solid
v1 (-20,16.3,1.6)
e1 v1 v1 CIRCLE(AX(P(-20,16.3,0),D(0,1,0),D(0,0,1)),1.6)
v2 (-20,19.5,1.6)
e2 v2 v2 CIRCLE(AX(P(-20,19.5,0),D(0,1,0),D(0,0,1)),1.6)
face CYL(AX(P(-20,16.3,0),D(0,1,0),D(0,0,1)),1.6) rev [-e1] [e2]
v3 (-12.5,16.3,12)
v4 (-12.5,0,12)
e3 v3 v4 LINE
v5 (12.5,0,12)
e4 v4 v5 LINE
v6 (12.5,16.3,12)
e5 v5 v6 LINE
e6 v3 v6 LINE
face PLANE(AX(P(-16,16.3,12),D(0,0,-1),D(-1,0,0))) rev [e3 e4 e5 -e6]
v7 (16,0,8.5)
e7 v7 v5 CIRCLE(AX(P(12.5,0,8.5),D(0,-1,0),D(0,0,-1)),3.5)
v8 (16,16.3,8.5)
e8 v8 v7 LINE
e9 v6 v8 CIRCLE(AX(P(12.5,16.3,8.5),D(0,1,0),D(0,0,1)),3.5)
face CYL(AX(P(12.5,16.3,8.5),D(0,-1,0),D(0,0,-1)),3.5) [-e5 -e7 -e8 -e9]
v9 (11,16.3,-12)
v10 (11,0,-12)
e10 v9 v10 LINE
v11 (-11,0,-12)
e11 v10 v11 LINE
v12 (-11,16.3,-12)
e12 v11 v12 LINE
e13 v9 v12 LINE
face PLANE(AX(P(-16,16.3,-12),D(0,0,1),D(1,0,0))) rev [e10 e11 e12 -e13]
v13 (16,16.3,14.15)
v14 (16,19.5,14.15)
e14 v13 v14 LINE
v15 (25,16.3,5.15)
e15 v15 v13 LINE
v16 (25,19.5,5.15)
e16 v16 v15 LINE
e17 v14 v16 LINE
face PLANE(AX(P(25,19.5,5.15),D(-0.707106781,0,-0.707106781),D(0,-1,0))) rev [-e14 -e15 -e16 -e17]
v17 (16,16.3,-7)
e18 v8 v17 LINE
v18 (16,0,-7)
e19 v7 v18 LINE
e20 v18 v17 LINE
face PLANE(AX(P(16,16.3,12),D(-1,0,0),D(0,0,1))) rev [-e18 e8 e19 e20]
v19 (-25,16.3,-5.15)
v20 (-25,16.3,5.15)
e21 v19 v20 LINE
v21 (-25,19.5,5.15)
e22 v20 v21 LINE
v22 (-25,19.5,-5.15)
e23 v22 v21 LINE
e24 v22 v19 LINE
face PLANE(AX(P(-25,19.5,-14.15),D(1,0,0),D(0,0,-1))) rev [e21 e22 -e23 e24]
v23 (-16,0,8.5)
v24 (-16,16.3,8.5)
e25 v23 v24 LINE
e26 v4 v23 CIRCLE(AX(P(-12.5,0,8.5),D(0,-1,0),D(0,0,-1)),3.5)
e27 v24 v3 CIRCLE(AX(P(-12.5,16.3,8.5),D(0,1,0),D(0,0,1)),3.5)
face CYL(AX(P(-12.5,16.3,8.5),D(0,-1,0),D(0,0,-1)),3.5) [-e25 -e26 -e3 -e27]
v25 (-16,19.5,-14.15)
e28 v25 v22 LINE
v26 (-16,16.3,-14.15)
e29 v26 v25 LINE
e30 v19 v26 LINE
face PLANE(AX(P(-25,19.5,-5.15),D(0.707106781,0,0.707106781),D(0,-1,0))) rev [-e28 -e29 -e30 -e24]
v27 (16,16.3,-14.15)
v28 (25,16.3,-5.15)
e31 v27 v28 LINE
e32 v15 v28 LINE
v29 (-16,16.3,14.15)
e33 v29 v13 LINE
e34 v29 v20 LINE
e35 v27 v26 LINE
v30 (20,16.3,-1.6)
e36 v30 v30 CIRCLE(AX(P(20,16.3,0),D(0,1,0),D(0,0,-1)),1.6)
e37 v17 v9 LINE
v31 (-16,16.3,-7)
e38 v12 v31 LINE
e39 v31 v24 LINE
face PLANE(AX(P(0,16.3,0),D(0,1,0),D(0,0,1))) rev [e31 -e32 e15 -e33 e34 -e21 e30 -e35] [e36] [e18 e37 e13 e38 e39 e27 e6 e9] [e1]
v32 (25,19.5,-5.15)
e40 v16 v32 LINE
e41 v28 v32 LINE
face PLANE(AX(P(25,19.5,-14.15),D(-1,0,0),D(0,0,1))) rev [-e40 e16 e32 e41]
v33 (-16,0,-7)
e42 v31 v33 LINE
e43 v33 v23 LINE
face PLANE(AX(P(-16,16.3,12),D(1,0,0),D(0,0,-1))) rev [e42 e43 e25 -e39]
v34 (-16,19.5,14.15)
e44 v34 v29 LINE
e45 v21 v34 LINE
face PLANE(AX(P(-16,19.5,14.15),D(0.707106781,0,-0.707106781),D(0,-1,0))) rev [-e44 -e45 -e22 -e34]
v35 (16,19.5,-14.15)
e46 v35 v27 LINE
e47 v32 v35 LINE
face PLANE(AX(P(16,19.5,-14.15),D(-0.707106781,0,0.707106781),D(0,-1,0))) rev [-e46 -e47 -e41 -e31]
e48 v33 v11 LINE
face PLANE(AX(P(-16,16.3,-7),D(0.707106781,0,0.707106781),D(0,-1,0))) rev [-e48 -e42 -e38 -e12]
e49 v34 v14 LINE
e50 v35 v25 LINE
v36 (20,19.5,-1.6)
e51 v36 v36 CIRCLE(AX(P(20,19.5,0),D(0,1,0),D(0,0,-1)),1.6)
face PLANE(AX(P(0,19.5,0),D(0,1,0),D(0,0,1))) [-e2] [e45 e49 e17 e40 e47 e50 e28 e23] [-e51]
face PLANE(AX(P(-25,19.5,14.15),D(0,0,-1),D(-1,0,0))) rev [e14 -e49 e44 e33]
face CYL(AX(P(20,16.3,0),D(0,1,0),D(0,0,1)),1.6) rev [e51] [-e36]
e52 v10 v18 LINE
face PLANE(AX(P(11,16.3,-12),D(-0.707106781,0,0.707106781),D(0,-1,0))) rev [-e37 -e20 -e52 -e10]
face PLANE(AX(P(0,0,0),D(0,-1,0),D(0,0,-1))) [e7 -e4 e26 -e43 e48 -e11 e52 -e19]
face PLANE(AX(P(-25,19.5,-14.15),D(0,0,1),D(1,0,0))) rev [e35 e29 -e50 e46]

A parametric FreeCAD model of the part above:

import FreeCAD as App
import Part
import Sketcher


def edges_at(feature, points):
    """Names of the edges that pass closest to the given points."""
    edges = feature.Shape.Edges
    near = lambda p: min(range(len(edges)), key=lambda i: edges[i].distToShape(Part.Vertex(*p))[0])
    return sorted({f"Edge{near(p) + 1}" for p in points})


def add_polygon(sketch, points):
    """Adds a closed chain of lines whose ends are joined by coincident constraints."""
    first, n = sketch.GeometryCount, len(points)
    for a, b in zip(points, points[1:] + points[:1]):
        sketch.addGeometry(Part.LineSegment(App.Vector(*a, 0), App.Vector(*b, 0)), False)
    for i in range(n):
        sketch.addConstraint(Sketcher.Constraint("Coincident", first + i, 2, first + (i + 1) % n, 1))

doc = App.newDocument("Part")
body = doc.addObject("PartDesign::Body", "Body")

sketch1 = body.newObject("Sketcher::SketchObject", "Sketch")
sketch1.AttachmentSupport = (doc.getObject("XZ_Plane"), [""])
sketch1.MapMode = "FlatFace"
add_polygon(sketch1, [(-16, -12), (-16, 12), (16, 12), (16, -12)])
sketch1.addConstraint([
    Sketcher.Constraint("Vertical", 0),
    Sketcher.Constraint("Horizontal", 1),
    Sketcher.Constraint("Vertical", 2),
    Sketcher.Constraint("Horizontal", 3),
    Sketcher.Constraint("Symmetric", 0, 2, 2, 2, -1, 1),
    Sketcher.Constraint("DistanceX", 1, 1, 1, 2, 32.0),
    Sketcher.Constraint("DistanceY", 0, 1, 0, 2, 24.0),
])
pad1 = body.newObject("PartDesign::Pad", "Pad")
pad1.Profile = sketch1
pad1.Length = 16.3
pad1.Reversed = True

sketch2 = body.newObject("Sketcher::SketchObject", "Sketch001")
sketch2.AttachmentSupport = (doc.getObject("XZ_Plane"), [""])
sketch2.MapMode = "FlatFace"
sketch2.AttachmentOffset = App.Placement(App.Vector(0, 0, -16.3), App.Rotation())
add_polygon(sketch2, [(-25, -14), (-25, 14), (25, 14), (25, -14)])
sketch2.addConstraint([
    Sketcher.Constraint("Vertical", 0),
    Sketcher.Constraint("Horizontal", 1),
    Sketcher.Constraint("Vertical", 2),
    Sketcher.Constraint("Horizontal", 3),
    Sketcher.Constraint("Symmetric", 0, 2, 2, 2, -1, 1),
    Sketcher.Constraint("DistanceX", 1, 1, 1, 2, 50.0),
    Sketcher.Constraint("DistanceY", 0, 1, 0, 2, 28.3),
])
pad2 = body.newObject("PartDesign::Pad", "Pad001")
pad2.Profile = sketch2
pad2.Length = 3.2
pad2.Reversed = True
doc.recompute()

fillet = body.newObject("PartDesign::Fillet", "Fillet")
fillet.Base = (pad2, edges_at(pad2, [(16, 8.15, 12), (-16, 8.15, 12)]))
fillet.Radius = 3.5
doc.recompute()

chamfer = body.newObject("PartDesign::Chamfer", "Chamfer")
chamfer.Base = (fillet, edges_at(fillet, [(-16, 8.15, -12), (16, 8.15, -12)]))
chamfer.Size = 5
doc.recompute()

chamfer2 = body.newObject("PartDesign::Chamfer", "Chamfer001")
chamfer2.Base = (chamfer, edges_at(chamfer, [
    (25, 17.9, 14.15),
    (25, 17.9, -14.15),
    (-25, 17.9, -14.15),
    (-25, 17.9, 14.15),
]))
chamfer2.Size = 9

sketch3 = body.newObject("Sketcher::SketchObject", "Sketch002")
sketch3.AttachmentSupport = (doc.getObject("XZ_Plane"), [""])
sketch3.MapMode = "FlatFace"
sketch3.AttachmentOffset = App.Placement(App.Vector(0, 0, -19.5), App.Rotation())
sketch3.addGeometry([
    Part.Circle(App.Vector(-20, 0, 0), App.Vector(0, 0, 1), 1.6),
    Part.Circle(App.Vector(20, 0, 0), App.Vector(0, 0, 1), 1.6),
], False)
sketch3.addConstraint([
    Sketcher.Constraint("Equal", 0, 1),
    Sketcher.Constraint("Symmetric", 0, 3, 1, 3, -1, 1),
    Sketcher.Constraint("PointOnObject", 0, 3, -1),
    Sketcher.Constraint("Diameter", 0, 3.2),
    Sketcher.Constraint("DistanceX", 0, 3, -1, 1, 20.0),
])
pocket1 = body.newObject("PartDesign::Pocket", "Pocket")
pocket1.Profile = sketch3
pocket1.Length = 3.2
pocket1.Reversed = True

doc.recompute()
